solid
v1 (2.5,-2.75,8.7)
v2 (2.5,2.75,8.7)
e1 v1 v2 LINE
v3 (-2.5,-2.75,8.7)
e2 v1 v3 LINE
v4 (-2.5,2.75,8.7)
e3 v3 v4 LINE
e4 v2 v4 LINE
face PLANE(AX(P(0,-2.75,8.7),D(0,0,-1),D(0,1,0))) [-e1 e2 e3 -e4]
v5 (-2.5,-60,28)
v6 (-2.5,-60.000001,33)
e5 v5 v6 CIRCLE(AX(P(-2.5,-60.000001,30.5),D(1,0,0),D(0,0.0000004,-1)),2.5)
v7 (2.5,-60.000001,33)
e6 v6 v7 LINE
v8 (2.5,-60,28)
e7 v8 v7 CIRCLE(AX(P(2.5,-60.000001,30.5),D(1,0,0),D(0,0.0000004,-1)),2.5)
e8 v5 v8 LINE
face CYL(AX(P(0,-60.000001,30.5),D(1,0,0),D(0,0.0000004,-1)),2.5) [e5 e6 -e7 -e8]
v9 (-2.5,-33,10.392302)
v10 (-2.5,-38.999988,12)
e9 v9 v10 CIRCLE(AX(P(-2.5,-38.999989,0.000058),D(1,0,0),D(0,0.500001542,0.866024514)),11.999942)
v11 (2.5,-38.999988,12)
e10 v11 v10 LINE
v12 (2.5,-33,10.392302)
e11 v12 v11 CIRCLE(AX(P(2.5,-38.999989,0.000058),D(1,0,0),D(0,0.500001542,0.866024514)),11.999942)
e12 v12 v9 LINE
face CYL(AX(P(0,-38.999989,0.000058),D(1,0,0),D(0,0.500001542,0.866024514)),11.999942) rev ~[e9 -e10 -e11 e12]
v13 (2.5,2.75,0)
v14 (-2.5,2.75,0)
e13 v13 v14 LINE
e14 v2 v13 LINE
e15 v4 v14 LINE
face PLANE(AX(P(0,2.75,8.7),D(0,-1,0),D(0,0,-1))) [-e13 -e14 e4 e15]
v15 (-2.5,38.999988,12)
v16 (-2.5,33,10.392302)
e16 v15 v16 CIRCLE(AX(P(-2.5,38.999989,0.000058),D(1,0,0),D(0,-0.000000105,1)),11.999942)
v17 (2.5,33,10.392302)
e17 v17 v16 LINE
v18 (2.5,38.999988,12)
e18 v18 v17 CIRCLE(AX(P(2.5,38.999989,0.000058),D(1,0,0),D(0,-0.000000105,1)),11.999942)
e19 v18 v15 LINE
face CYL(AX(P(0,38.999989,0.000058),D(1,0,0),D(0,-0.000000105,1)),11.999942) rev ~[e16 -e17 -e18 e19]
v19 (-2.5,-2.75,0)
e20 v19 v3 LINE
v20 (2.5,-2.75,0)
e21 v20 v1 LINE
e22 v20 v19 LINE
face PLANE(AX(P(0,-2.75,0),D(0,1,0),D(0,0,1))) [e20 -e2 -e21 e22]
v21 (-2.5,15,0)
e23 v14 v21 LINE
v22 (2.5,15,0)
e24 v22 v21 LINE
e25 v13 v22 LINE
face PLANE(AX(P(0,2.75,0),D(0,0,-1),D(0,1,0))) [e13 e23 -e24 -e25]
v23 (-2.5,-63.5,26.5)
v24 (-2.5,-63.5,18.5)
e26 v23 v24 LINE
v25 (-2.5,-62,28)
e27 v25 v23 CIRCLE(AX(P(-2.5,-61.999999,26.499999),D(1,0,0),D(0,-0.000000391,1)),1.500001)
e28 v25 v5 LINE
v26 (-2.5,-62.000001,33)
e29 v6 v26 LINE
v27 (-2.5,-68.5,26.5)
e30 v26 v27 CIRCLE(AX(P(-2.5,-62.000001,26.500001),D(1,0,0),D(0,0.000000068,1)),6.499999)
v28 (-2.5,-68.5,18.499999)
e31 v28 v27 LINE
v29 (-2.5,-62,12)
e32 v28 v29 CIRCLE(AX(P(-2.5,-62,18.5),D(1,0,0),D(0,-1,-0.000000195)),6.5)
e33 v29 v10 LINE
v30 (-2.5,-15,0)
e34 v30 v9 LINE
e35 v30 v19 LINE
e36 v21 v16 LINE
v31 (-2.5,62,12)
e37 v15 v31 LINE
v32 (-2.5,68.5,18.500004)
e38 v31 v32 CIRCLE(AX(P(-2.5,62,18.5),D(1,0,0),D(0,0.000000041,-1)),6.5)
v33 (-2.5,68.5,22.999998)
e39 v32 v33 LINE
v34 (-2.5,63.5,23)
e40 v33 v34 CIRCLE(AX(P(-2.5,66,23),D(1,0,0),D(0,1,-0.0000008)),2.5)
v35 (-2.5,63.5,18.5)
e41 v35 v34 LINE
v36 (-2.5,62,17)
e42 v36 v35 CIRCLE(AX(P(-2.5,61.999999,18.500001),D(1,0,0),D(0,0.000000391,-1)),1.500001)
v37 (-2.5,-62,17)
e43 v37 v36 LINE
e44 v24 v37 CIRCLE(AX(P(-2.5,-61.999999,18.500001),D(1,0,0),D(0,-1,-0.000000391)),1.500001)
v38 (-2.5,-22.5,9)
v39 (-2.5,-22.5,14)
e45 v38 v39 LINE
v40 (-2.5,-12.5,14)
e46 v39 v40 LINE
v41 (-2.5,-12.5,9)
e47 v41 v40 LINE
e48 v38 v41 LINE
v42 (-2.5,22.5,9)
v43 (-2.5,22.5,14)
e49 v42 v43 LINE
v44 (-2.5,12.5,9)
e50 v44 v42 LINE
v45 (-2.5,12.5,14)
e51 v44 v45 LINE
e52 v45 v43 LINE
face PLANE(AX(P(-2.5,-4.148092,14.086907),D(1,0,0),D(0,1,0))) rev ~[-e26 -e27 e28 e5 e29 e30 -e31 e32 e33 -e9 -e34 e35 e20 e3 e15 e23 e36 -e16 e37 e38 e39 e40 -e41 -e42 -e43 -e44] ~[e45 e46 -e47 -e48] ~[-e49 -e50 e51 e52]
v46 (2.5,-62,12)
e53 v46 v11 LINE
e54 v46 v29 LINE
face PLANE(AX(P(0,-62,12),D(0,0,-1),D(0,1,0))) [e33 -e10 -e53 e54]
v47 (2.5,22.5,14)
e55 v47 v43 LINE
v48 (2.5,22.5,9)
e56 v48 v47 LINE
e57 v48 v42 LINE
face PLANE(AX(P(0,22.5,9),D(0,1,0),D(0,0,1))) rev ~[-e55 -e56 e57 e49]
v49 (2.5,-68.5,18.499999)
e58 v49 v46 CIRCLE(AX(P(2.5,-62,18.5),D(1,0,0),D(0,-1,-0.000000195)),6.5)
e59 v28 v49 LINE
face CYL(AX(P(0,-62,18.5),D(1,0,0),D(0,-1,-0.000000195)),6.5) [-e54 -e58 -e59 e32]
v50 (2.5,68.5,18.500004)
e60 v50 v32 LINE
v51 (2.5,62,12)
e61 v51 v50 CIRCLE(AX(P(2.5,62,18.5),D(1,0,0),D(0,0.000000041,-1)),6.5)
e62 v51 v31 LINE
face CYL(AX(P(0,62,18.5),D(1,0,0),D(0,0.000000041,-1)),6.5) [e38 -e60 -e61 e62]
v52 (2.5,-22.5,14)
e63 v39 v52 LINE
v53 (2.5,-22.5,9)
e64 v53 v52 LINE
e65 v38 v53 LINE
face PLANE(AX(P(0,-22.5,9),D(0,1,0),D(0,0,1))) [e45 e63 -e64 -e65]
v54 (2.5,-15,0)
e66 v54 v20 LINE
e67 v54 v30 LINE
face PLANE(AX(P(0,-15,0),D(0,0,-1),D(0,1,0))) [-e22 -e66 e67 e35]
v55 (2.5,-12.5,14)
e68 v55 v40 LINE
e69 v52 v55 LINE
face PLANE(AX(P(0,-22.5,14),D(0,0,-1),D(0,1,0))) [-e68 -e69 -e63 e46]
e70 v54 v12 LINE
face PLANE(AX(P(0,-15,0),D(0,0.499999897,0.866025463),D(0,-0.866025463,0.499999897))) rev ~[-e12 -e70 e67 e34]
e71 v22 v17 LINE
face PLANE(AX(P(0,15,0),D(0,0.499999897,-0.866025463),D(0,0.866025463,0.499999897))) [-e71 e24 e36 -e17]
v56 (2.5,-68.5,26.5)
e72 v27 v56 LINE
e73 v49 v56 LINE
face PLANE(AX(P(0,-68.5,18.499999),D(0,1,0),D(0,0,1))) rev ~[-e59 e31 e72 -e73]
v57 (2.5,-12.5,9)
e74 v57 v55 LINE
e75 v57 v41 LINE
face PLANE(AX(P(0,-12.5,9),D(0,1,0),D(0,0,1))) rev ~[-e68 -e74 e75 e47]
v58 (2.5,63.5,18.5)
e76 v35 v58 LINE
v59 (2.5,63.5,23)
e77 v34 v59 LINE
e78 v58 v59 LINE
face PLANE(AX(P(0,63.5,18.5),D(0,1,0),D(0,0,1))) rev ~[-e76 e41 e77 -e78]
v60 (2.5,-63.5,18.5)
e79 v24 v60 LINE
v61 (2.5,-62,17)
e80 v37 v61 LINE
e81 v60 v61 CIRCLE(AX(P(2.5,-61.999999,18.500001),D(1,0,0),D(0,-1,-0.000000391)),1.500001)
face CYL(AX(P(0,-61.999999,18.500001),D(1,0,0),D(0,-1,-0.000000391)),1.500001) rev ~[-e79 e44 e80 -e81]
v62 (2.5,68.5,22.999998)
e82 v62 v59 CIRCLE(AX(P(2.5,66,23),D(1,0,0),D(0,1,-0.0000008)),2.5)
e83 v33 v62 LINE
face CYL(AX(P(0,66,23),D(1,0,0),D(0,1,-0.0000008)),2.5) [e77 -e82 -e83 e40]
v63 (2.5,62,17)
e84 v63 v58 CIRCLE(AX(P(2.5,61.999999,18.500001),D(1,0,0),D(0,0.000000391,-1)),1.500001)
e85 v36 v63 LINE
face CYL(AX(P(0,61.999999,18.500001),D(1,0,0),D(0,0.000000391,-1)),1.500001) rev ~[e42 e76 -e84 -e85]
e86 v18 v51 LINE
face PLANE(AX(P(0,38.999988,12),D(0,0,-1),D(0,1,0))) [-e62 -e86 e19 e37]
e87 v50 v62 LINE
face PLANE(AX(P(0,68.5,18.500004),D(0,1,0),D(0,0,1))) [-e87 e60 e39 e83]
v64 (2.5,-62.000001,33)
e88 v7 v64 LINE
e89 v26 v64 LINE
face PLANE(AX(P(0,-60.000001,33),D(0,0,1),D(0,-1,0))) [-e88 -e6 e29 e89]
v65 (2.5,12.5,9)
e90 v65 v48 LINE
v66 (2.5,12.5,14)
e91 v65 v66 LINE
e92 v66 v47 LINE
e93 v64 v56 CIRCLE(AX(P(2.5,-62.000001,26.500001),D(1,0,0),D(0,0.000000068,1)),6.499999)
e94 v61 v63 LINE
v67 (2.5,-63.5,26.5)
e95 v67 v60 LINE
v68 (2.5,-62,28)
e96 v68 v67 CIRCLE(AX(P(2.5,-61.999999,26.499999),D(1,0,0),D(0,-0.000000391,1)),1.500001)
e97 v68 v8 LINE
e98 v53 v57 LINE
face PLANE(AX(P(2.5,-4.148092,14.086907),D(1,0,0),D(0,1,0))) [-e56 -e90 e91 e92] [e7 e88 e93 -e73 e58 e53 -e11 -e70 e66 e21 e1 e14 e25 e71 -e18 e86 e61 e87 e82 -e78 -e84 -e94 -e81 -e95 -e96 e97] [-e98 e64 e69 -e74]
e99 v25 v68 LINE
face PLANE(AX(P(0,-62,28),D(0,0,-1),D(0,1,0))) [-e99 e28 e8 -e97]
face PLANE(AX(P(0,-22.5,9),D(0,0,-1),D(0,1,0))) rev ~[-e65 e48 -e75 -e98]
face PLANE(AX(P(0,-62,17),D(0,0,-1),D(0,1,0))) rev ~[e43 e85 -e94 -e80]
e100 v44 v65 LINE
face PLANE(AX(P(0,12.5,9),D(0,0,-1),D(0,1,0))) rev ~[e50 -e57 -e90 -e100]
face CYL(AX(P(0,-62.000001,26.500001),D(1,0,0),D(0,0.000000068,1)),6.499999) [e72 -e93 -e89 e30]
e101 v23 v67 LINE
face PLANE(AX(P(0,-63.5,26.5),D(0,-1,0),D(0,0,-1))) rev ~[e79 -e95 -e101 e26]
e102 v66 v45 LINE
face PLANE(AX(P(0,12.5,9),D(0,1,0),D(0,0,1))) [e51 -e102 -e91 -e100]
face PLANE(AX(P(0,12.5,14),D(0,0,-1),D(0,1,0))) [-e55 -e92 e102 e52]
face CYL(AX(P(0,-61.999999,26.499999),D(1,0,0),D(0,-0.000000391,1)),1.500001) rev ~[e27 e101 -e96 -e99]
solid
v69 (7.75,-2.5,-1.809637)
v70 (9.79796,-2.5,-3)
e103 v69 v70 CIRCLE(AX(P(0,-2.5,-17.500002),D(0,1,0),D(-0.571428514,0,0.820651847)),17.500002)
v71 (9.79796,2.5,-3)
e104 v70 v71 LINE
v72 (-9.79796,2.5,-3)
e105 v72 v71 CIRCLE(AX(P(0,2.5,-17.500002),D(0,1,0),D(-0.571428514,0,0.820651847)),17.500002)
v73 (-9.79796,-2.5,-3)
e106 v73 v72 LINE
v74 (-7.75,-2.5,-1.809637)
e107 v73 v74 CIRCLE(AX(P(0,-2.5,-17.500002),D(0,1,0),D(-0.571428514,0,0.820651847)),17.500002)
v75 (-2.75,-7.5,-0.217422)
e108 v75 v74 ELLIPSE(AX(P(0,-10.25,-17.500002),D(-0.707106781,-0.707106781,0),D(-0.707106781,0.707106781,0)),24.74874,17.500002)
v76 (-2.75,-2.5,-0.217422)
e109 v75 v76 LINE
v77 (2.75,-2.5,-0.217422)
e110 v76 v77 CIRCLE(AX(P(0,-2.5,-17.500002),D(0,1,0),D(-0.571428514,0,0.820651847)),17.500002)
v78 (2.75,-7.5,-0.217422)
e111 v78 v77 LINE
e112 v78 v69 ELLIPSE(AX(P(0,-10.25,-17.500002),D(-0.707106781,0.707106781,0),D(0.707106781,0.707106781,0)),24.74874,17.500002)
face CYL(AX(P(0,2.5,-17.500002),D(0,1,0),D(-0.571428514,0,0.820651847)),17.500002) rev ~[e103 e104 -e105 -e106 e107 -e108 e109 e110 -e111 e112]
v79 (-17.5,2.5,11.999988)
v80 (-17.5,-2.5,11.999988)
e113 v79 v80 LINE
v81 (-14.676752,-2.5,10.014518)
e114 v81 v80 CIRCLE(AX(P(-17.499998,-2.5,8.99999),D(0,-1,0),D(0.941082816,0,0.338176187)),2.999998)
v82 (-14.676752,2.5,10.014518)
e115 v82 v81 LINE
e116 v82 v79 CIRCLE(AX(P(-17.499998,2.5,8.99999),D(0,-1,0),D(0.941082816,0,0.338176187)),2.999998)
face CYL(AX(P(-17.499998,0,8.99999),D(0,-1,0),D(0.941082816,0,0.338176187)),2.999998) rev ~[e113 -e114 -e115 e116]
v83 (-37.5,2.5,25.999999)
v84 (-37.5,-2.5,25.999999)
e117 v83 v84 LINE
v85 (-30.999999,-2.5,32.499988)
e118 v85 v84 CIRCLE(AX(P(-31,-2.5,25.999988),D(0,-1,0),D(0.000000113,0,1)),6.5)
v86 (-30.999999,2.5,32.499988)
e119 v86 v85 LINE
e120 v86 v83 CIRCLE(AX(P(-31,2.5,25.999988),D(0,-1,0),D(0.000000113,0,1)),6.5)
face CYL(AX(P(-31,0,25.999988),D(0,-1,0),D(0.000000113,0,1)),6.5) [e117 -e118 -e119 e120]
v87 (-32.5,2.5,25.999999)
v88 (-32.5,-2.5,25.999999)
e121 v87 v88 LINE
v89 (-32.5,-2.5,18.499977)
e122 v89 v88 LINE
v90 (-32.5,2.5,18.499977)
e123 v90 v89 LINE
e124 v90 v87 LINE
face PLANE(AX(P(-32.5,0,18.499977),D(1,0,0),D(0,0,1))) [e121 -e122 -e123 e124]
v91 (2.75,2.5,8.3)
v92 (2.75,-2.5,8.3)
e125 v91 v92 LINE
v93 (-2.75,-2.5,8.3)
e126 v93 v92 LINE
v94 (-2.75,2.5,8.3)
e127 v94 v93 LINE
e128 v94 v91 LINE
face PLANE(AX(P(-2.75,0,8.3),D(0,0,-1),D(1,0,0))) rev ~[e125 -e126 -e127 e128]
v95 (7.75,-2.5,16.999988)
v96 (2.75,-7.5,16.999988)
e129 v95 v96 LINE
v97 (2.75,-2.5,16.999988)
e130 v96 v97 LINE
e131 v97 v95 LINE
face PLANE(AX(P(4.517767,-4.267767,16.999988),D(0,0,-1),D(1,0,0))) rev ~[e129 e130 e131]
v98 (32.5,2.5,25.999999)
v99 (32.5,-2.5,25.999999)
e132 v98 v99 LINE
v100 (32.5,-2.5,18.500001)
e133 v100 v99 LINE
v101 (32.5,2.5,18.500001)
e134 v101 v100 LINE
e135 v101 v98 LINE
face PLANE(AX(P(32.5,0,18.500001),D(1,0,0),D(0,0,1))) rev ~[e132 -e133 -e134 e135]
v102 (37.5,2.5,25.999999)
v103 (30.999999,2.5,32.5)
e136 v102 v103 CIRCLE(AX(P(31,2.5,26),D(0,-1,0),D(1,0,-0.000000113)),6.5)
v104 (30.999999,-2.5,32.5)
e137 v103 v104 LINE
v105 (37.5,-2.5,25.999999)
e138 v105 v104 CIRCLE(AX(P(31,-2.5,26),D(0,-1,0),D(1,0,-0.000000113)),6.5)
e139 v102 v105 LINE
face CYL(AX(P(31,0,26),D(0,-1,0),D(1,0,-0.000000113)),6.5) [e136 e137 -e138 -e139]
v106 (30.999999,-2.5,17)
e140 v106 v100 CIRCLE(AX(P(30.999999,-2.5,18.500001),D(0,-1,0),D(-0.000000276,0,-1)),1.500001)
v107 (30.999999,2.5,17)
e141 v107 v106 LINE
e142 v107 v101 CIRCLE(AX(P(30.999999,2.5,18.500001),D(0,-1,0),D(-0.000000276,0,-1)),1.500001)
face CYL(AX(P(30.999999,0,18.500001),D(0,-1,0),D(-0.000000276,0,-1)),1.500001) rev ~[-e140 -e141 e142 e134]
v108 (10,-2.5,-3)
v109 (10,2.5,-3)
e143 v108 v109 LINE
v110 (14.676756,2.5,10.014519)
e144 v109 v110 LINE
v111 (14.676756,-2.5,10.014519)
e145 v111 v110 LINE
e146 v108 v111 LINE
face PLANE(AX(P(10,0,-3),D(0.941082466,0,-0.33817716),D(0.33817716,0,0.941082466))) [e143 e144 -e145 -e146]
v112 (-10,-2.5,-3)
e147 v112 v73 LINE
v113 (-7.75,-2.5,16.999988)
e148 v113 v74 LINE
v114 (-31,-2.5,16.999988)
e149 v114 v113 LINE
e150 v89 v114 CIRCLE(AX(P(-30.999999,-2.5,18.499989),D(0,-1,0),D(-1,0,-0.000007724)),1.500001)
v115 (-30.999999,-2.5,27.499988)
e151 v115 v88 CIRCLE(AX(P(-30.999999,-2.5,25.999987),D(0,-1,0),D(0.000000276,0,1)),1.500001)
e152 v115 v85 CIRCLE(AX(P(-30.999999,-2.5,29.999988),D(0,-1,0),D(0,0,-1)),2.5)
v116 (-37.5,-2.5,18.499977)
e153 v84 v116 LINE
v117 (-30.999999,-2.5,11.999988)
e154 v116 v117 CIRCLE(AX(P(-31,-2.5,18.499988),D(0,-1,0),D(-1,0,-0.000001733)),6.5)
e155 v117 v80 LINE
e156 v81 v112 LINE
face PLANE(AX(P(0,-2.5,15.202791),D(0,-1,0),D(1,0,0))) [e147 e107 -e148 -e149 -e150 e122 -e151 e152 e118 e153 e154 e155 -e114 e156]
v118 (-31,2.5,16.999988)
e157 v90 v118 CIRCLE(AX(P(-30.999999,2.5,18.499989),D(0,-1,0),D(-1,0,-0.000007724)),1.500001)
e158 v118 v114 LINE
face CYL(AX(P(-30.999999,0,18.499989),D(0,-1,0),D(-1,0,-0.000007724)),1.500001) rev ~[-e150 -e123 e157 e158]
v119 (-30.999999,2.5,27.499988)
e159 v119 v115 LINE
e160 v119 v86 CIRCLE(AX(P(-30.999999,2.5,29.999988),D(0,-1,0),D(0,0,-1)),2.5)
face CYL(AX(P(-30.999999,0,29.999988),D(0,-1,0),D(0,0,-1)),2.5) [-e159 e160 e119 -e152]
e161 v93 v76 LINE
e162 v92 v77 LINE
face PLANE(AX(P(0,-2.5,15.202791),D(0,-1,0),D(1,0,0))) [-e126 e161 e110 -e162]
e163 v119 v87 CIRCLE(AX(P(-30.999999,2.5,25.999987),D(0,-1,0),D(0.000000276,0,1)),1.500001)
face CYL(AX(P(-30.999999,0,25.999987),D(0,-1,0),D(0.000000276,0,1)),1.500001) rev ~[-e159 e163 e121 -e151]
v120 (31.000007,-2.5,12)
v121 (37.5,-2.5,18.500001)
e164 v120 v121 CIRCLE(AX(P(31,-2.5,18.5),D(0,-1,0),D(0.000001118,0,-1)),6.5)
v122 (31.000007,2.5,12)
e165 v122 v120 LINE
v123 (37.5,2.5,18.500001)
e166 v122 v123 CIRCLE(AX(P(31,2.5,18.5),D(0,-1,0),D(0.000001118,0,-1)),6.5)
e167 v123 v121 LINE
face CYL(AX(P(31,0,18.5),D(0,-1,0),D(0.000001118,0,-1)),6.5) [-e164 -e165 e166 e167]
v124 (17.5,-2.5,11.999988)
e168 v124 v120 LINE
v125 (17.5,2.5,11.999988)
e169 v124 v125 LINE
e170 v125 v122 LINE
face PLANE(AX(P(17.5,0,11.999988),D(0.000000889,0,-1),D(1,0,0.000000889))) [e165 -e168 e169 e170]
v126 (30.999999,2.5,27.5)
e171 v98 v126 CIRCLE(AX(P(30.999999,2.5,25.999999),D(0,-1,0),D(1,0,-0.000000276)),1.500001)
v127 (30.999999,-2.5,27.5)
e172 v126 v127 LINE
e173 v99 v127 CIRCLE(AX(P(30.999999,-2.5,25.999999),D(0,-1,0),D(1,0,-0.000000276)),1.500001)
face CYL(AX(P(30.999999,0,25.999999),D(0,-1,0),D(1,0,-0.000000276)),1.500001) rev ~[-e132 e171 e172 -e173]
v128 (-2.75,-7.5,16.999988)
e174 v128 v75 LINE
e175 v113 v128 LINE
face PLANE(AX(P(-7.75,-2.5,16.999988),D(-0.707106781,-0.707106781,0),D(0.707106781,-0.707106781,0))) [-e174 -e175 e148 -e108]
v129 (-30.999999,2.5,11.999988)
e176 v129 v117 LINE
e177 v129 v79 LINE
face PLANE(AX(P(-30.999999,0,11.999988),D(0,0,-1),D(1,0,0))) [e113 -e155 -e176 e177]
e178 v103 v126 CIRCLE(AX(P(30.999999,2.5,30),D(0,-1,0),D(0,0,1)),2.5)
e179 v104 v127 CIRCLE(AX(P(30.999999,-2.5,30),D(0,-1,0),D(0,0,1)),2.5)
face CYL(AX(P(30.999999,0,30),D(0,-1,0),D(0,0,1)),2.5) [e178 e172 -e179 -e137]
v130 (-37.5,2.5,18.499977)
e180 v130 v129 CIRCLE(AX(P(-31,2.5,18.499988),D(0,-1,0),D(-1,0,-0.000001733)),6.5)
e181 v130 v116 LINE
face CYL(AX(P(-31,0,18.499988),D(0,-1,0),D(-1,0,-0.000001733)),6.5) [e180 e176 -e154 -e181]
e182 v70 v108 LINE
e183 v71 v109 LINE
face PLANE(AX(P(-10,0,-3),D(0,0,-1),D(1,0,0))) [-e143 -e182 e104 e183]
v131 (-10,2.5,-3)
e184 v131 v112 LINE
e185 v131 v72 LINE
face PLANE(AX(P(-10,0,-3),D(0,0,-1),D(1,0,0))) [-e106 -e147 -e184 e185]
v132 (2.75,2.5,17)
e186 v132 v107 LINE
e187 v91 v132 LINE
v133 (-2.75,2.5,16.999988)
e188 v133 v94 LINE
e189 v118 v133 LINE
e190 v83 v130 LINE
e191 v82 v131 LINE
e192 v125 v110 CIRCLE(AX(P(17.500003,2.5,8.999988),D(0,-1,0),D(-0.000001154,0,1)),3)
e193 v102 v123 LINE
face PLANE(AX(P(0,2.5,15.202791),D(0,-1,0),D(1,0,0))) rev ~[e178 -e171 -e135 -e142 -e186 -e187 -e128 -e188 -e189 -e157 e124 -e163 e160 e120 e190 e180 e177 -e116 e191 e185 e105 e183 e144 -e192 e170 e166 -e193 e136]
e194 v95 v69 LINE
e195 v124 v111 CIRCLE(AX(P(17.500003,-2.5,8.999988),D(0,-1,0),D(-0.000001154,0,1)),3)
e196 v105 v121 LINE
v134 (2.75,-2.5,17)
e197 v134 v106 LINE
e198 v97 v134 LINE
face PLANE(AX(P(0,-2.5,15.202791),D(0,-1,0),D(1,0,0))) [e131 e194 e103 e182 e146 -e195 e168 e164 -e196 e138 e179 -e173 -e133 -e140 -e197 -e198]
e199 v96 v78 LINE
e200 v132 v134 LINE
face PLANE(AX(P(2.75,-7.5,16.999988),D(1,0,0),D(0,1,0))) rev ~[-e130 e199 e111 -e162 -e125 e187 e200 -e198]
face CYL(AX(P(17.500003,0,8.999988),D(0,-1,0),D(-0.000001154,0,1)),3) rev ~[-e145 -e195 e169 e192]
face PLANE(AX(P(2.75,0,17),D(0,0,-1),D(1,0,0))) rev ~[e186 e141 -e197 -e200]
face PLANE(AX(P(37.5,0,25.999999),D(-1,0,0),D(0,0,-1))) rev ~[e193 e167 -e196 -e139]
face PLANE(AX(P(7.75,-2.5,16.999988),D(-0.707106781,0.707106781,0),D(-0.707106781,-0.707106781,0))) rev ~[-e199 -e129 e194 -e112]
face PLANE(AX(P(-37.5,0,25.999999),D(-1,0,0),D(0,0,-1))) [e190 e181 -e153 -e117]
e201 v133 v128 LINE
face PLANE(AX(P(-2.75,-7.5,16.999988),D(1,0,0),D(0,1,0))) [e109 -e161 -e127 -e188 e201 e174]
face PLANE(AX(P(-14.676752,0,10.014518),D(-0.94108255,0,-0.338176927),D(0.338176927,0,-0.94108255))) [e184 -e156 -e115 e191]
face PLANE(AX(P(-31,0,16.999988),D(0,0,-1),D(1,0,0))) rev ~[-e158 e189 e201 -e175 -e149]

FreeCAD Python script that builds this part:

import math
import FreeCAD as App
import Part
import Sketcher

V = App.Vector
Q = App.Units.Quantity


def add_polygon(sketch, points):
    """Adds a closed chain of lines whose ends are joined by coincident constraints."""
    first, n = sketch.GeometryCount, len(points)
    for a, b in zip(points, points[1:] + points[:1]):
        sketch.addGeometry(Part.LineSegment(App.Vector(*a, 0), App.Vector(*b, 0)), False)
    for i in range(n):
        sketch.addConstraint(Sketcher.Constraint("Coincident", first + i, 2, first + (i + 1) % n, 1))

doc = App.newDocument("Part")
body = doc.addObject("PartDesign::Body", "Body")

# Sketch on YZ plane
sketch1 = body.newObject("Sketcher::SketchObject", "Sketch")
sketch1.AttachmentSupport = (doc.getObject("YZ_Plane"), [""])
sketch1.MapMode = "FlatFace"
sketch1.addGeometry(Part.LineSegment(V(68.5, 18.500004, 0), V(68.5, 22.999998, 0)), False)  # 0
sketch1.addGeometry(Part.ArcOfCircle(Part.Circle(V(66, 23, 0), V(0, 0, 1), 2.5), math.radians(-0.000046), math.radians(180)), False)  # 1
sketch1.addGeometry(Part.LineSegment(V(63.5, 23, 0), V(63.5, 18.5, 0)), False)  # 2
sketch1.addGeometry(Part.ArcOfCircle(Part.Circle(V(61.999999, 18.500001, 0), V(0, 0, 1), 1.500001), math.radians(-89.999978), math.radians(-0.000022)), False)  # 3
sketch1.addGeometry(Part.LineSegment(V(62, 17, 0), V(-62, 17, 0)), False)  # 4
sketch1.addGeometry(Part.ArcOfCircle(Part.Circle(V(-61.999999, 18.500001, 0), V(0, 0, 1), 1.500001), math.radians(-179.999978), math.radians(-90.000022)), False)  # 5
sketch1.addGeometry(Part.LineSegment(V(-63.5, 18.5, 0), V(-63.5, 26.5, 0)), False)  # 6
sketch1.addGeometry(Part.ArcOfCircle(Part.Circle(V(-61.999999, 26.499999, 0), V(0, 0, 1), 1.500001), math.radians(90.000022), math.radians(179.999978)), False)  # 7
sketch1.addGeometry(Part.LineSegment(V(-62, 28, 0), V(-60, 28, 0)), False)  # 8
sketch1.addGeometry(Part.ArcOfCircle(Part.Circle(V(-60.000001, 30.5, 0), V(0, 0, 1), 2.5), math.radians(-89.999977), math.radians(90)), False)  # 9
sketch1.addGeometry(Part.LineSegment(V(-60.000001, 33, 0), V(-62.000001, 33, 0)), False)  # 10
sketch1.addGeometry(Part.ArcOfCircle(Part.Circle(V(-62.000001, 26.500001, 0), V(0, 0, 1), 6.499999), math.radians(89.999996), math.radians(180.000013)), False)  # 11
sketch1.addGeometry(Part.LineSegment(V(-68.5, 26.5, 0), V(-68.5, 18.499999, 0)), False)  # 12
sketch1.addGeometry(Part.ArcOfCircle(Part.Circle(V(-62, 18.5, 0), V(0, 0, 1), 6.5), math.radians(-179.999989), math.radians(-90.000002)), False)  # 13
sketch1.addGeometry(Part.LineSegment(V(-62, 12, 0), V(-38.999988, 12, 0)), False)  # 14
sketch1.addGeometry(Part.ArcOfCircle(Part.Circle(V(-38.999989, 0.000058, 0), V(0, 0, 1), 11.999942), math.radians(59.999898), math.radians(89.999994)), False)  # 15
sketch1.addGeometry(Part.LineSegment(V(-33, 10.392302, 0), V(-15, 0, 0)), False)  # 16
sketch1.addGeometry(Part.LineSegment(V(-15, 0, 0), V(-2.75, 0, 0)), False)  # 17
sketch1.addGeometry(Part.LineSegment(V(-2.75, 0, 0), V(-2.75, 8.7, 0)), False)  # 18
sketch1.addGeometry(Part.LineSegment(V(-2.75, 8.7, 0), V(2.75, 8.7, 0)), False)  # 19
sketch1.addGeometry(Part.LineSegment(V(2.75, 8.7, 0), V(2.75, 0, 0)), False)  # 20
sketch1.addGeometry(Part.LineSegment(V(2.75, 0, 0), V(15, 0, 0)), False)  # 21
sketch1.addGeometry(Part.LineSegment(V(15, 0, 0), V(33, 10.392302, 0)), False)  # 22
sketch1.addGeometry(Part.ArcOfCircle(Part.Circle(V(38.999989, 0.000058, 0), V(0, 0, 1), 11.999942), math.radians(90.000006), math.radians(120.000102)), False)  # 23
sketch1.addGeometry(Part.LineSegment(V(38.999988, 12, 0), V(62, 12, 0)), False)  # 24
sketch1.addGeometry(Part.ArcOfCircle(Part.Circle(V(62, 18.5, 0), V(0, 0, 1), 6.5), math.radians(-89.999998), math.radians(0.000033)), False)  # 25
add_polygon(sketch1, [(-12.5, 9), (-22.5, 9), (-22.5, 14), (-12.5, 14)])  # lines 26-29
add_polygon(sketch1, [(22.5, 9), (12.5, 9), (12.5, 14), (22.5, 14)])  # lines 30-33
sketch1.addConstraint(Sketcher.Constraint("Coincident", 0, 2, 1, 1))
sketch1.addConstraint(Sketcher.Constraint("Coincident", 1, 2, 2, 1))
sketch1.addConstraint(Sketcher.Constraint("Coincident", 2, 2, 3, 2))
sketch1.addConstraint(Sketcher.Constraint("Coincident", 3, 1, 4, 1))
sketch1.addConstraint(Sketcher.Constraint("Coincident", 4, 2, 5, 2))
sketch1.addConstraint(Sketcher.Constraint("Coincident", 5, 1, 6, 1))
sketch1.addConstraint(Sketcher.Constraint("Coincident", 6, 2, 7, 2))
sketch1.addConstraint(Sketcher.Constraint("Coincident", 7, 1, 8, 1))
sketch1.addConstraint(Sketcher.Constraint("Coincident", 8, 2, 9, 1))
sketch1.addConstraint(Sketcher.Constraint("Coincident", 9, 2, 10, 1))
sketch1.addConstraint(Sketcher.Constraint("Coincident", 10, 2, 11, 1))
sketch1.addConstraint(Sketcher.Constraint("Coincident", 11, 2, 12, 1))
sketch1.addConstraint(Sketcher.Constraint("Coincident", 12, 2, 13, 1))
sketch1.addConstraint(Sketcher.Constraint("Coincident", 13, 2, 14, 1))
sketch1.addConstraint(Sketcher.Constraint("Coincident", 14, 2, 15, 2))
sketch1.addConstraint(Sketcher.Constraint("Coincident", 15, 1, 16, 1))
sketch1.addConstraint(Sketcher.Constraint("Coincident", 16, 2, 17, 1))
sketch1.addConstraint(Sketcher.Constraint("Coincident", 17, 2, 18, 1))
sketch1.addConstraint(Sketcher.Constraint("Coincident", 18, 2, 19, 1))
sketch1.addConstraint(Sketcher.Constraint("Coincident", 19, 2, 20, 1))
sketch1.addConstraint(Sketcher.Constraint("Coincident", 20, 2, 21, 1))
sketch1.addConstraint(Sketcher.Constraint("Coincident", 21, 2, 22, 1))
sketch1.addConstraint(Sketcher.Constraint("Coincident", 22, 2, 23, 2))
sketch1.addConstraint(Sketcher.Constraint("Coincident", 23, 1, 24, 1))
sketch1.addConstraint(Sketcher.Constraint("Coincident", 24, 2, 25, 1))
sketch1.addConstraint(Sketcher.Constraint("Coincident", 25, 2, 0, 1))
sketch1.addConstraint(Sketcher.Constraint("Vertical", 0))
sketch1.addConstraint(Sketcher.Constraint("Vertical", 2))
sketch1.addConstraint(Sketcher.Constraint("Horizontal", 4))
sketch1.addConstraint(Sketcher.Constraint("Vertical", 6))
sketch1.addConstraint(Sketcher.Constraint("Horizontal", 8))
sketch1.addConstraint(Sketcher.Constraint("Horizontal", 10))
sketch1.addConstraint(Sketcher.Constraint("Vertical", 12))
sketch1.addConstraint(Sketcher.Constraint("Horizontal", 14))
sketch1.addConstraint(Sketcher.Constraint("Horizontal", 17))
sketch1.addConstraint(Sketcher.Constraint("Vertical", 18))
sketch1.addConstraint(Sketcher.Constraint("Horizontal", 19))
sketch1.addConstraint(Sketcher.Constraint("Vertical", 20))
sketch1.addConstraint(Sketcher.Constraint("Horizontal", 21))
sketch1.addConstraint(Sketcher.Constraint("Horizontal", 24))
sketch1.addConstraint(Sketcher.Constraint("Horizontal", 26))
sketch1.addConstraint(Sketcher.Constraint("Vertical", 27))
sketch1.addConstraint(Sketcher.Constraint("Horizontal", 28))
sketch1.addConstraint(Sketcher.Constraint("Vertical", 29))
sketch1.addConstraint(Sketcher.Constraint("Horizontal", 30))
sketch1.addConstraint(Sketcher.Constraint("Vertical", 31))
sketch1.addConstraint(Sketcher.Constraint("Horizontal", 32))
sketch1.addConstraint(Sketcher.Constraint("Vertical", 33))
sketch1.addConstraint(Sketcher.Constraint("Coincident", 11, 3, 7, 3))
sketch1.addConstraint(Sketcher.Constraint("Coincident", 13, 3, 5, 3))
sketch1.addConstraint(Sketcher.Constraint("Coincident", 25, 3, 3, 3))
sketch1.addConstraint(Sketcher.Constraint("PointOnObject", 16, 2, -1))
sketch1.addConstraint(Sketcher.Constraint("PointOnObject", 20, 2, -1))
sketch1.addConstraint(Sketcher.Constraint("Radius", 1, Q("2.5 mm")))
sketch1.addConstraint(Sketcher.Constraint("Radius", 3, Q("1.500001 mm")))
sketch1.addConstraint(Sketcher.Constraint("Radius", 5, Q("1.500001 mm")))
sketch1.addConstraint(Sketcher.Constraint("Radius", 7, Q("1.500001 mm")))
sketch1.addConstraint(Sketcher.Constraint("Radius", 9, Q("2.5 mm")))
sketch1.addConstraint(Sketcher.Constraint("DistanceX", 4, 2, 4, 1, Q("124 mm")))
sketch1.addConstraint(Sketcher.Constraint("DistanceX", 8, 1, 8, 2, Q("2 mm")))
sketch1.addConstraint(Sketcher.Constraint("DistanceX", 10, 2, 10, 1, Q("2 mm")))
sketch1.addConstraint(Sketcher.Constraint("DistanceX", 26, 2, 26, 1, Q("10 mm")))
sketch1.addConstraint(Sketcher.Constraint("DistanceX", 30, 2, 30, 1, Q("10 mm")))
sketch1.addConstraint(Sketcher.Constraint("DistanceY", 6, 1, 6, 2, Q("8 mm")))
sketch1.addConstraint(Sketcher.Constraint("DistanceY", 12, 2, 12, 1, Q("8.000001 mm")))
sketch1.addConstraint(Sketcher.Constraint("DistanceY", 27, 1, 27, 2, Q("5 mm")))
sketch1.addConstraint(Sketcher.Constraint("DistanceY", 31, 1, 31, 2, Q("5 mm")))
sketch1.addConstraint(Sketcher.Constraint("DistanceX", 19, 1, 19, 2, Q("5.5 mm")))
sketch1.addConstraint(Sketcher.Constraint("DistanceY", 2, 2, 2, 1, Q("4.5 mm")))
sketch1.addConstraint(Sketcher.Constraint("DistanceY", 18, 1, 18, 2, Q("8.7 mm")))
sketch1.addConstraint(Sketcher.Constraint("DistanceX", -1, 1, 1, 3, Q("66 mm")))
sketch1.addConstraint(Sketcher.Constraint("DistanceY", -1, 1, 1, 3, Q("23 mm")))
sketch1.addConstraint(Sketcher.Constraint("DistanceX", 5, 3, -1, 1, Q("61.999999 mm")))
sketch1.addConstraint(Sketcher.Constraint("DistanceX", 9, 3, -1, 1, Q("60.000001 mm")))
sketch1.addConstraint(Sketcher.Constraint("DistanceY", -1, 1, 0, 2, Q("22.999998 mm")))
sketch1.addConstraint(Sketcher.Constraint("DistanceY", -1, 1, 1, 2, Q("23 mm")))
sketch1.addConstraint(Sketcher.Constraint("DistanceX", -1, 1, 3, 1, Q("62 mm")))
sketch1.addConstraint(Sketcher.Constraint("DistanceY", -1, 1, 3, 1, Q("17 mm")))
sketch1.addConstraint(Sketcher.Constraint("DistanceX", 7, 1, -1, 1, Q("62 mm")))
sketch1.addConstraint(Sketcher.Constraint("DistanceY", -1, 1, 7, 1, Q("28 mm")))
sketch1.addConstraint(Sketcher.Constraint("DistanceX", 9, 2, -1, 1, Q("60.000001 mm")))
sketch1.addConstraint(Sketcher.Constraint("DistanceX", 13, 2, -1, 1, Q("62 mm")))
sketch1.addConstraint(Sketcher.Constraint("DistanceX", 15, 1, -1, 1, Q("33 mm")))
sketch1.addConstraint(Sketcher.Constraint("DistanceX", 16, 2, -1, 1, Q("15 mm")))
sketch1.addConstraint(Sketcher.Constraint("DistanceX", -1, 1, 21, 2, Q("15 mm")))
sketch1.addConstraint(Sketcher.Constraint("DistanceX", -1, 1, 22, 2, Q("33 mm")))
sketch1.addConstraint(Sketcher.Constraint("DistanceX", -1, 1, 24, 2, Q("62 mm")))
sketch1.addConstraint(Sketcher.Constraint("DistanceY", -1, 1, 26, 2, Q("9 mm")))
sketch1.addConstraint(Sketcher.Constraint("DistanceY", -1, 1, 30, 2, Q("9 mm")))
sketch1.addConstraint(Sketcher.Constraint("DistanceY", 5, 1, 7, 3, Q("7.999999 mm")))
sketch1.addConstraint(Sketcher.Constraint("DistanceX", 17, 1, 17, 2, Q("12.25 mm")))
sketch1.addConstraint(Sketcher.Constraint("DistanceY", -1, 1, 11, 2, Q("26.5 mm")))
sketch1.addConstraint(Sketcher.Constraint("DistanceX", 26, 2, -1, 1, Q("22.5 mm")))
sketch1.addConstraint(Sketcher.Constraint("DistanceX", -1, 1, 30, 2, Q("12.5 mm")))
sketch1.addConstraint(Sketcher.Constraint("Radius", 15, Q("11.999942 mm")))
sketch1.addConstraint(Sketcher.Constraint("Radius", 23, Q("11.999942 mm")))
sketch1.addConstraint(Sketcher.Constraint("DistanceX", 14, 1, 14, 2, Q("23.000012 mm")))
sketch1.addConstraint(Sketcher.Constraint("DistanceX", 24, 1, 24, 2, Q("23.000012 mm")))
sketch1.addConstraint(Sketcher.Constraint("DistanceY", -1, 1, 15, 1, Q("10.392302 mm")))
sketch1.addConstraint(Sketcher.Constraint("DistanceY", 22, 2, 3, 1, Q("6.607698 mm")))
sketch1.addConstraint(Sketcher.Constraint("DistanceY", 0, 1, 0, 2, Q("4.499994 mm")))
pad1 = body.newObject("PartDesign::Pad", "Pad")
pad1.Profile = sketch1
pad1.Length = 5
pad1.Midplane = True
body2 = doc.addObject("PartDesign::Body", "Body001")
body2.AllowCompound = True

# Sketch on XZ plane
sketch2 = body2.newObject("Sketcher::SketchObject", "Sketch001")
sketch2.AttachmentSupport = (doc.getObject("XZ_Plane001"), [""])
sketch2.MapMode = "FlatFace"
sketch2.addGeometry(Part.LineSegment(V(17.5, 11.999988, 0), V(31.000007, 12, 0)), False)
sketch2.addGeometry(Part.ArcOfCircle(Part.Circle(V(31, 18.5, 0), V(0, 0, 1), 6.5), math.radians(-89.999936), math.radians(0.000006)), False)
sketch2.addGeometry(Part.LineSegment(V(37.5, 18.500001, 0), V(37.5, 25.999999, 0)), False)
sketch2.addGeometry(Part.ArcOfCircle(Part.Circle(V(31, 26, 0), V(0, 0, 1), 6.5), math.radians(-0.000006), math.radians(90.000006)), False)
sketch2.addGeometry(Part.ArcOfCircle(Part.Circle(V(30.999999, 30, 0), V(0, 0, 1), 2.5), math.radians(90), math.radians(270)), False)
sketch2.addGeometry(Part.ArcOfCircle(Part.Circle(V(30.999999, 25.999999, 0), V(0, 0, 1), 1.500001), math.radians(-0.000016), math.radians(90.000016)), False)
sketch2.addGeometry(Part.LineSegment(V(32.5, 25.999999, 0), V(32.5, 18.500001, 0)), False)
sketch2.addGeometry(Part.ArcOfCircle(Part.Circle(V(30.999999, 18.500001, 0), V(0, 0, 1), 1.500001), math.radians(-90.000016), math.radians(0.000016)), False)
sketch2.addGeometry(Part.LineSegment(V(30.999999, 17, 0), V(2.75, 17, 0)), False)
sketch2.addGeometry(Part.LineSegment(V(2.75, 17, 0), V(2.75, 8.3, 0)), False)
sketch2.addGeometry(Part.LineSegment(V(2.75, 8.3, 0), V(-2.75, 8.3, 0)), False)
sketch2.addGeometry(Part.LineSegment(V(-2.75, 8.3, 0), V(-2.75, 16.999988, 0)), False)
sketch2.addGeometry(Part.LineSegment(V(-2.75, 16.999988, 0), V(-31, 16.999988, 0)), False)
sketch2.addGeometry(Part.ArcOfCircle(Part.Circle(V(-30.999999, 18.499989, 0), V(0, 0, 1), 1.500001), math.radians(-179.999557), math.radians(-90.000022)), False)
sketch2.addGeometry(Part.LineSegment(V(-32.5, 18.499977, 0), V(-32.5, 25.999999, 0)), False)
sketch2.addGeometry(Part.ArcOfCircle(Part.Circle(V(-30.999999, 25.999987, 0), V(0, 0, 1), 1.500001), math.radians(89.999984), math.radians(179.999557)), False)
sketch2.addGeometry(Part.ArcOfCircle(Part.Circle(V(-30.999999, 29.999988, 0), V(0, 0, 1), 2.5), math.radians(-90), math.radians(90)), False)
sketch2.addGeometry(Part.ArcOfCircle(Part.Circle(V(-31, 25.999988, 0), V(0, 0, 1), 6.5), math.radians(89.999994), math.radians(179.999901)), False)
sketch2.addGeometry(Part.LineSegment(V(-37.5, 25.999999, 0), V(-37.5, 18.499977, 0)), False)
sketch2.addGeometry(Part.ArcOfCircle(Part.Circle(V(-31, 18.499988, 0), V(0, 0, 1), 6.5), math.radians(-179.999901), math.radians(-89.999994)), False)
sketch2.addGeometry(Part.LineSegment(V(-30.999999, 11.999988, 0), V(-17.5, 11.999988, 0)), False)
sketch2.addGeometry(Part.ArcOfCircle(Part.Circle(V(-17.499998, 8.99999, 0), V(0, 0, 1), 2.999998), math.radians(19.765796), math.radians(90.000031)), False)
sketch2.addGeometry(Part.LineSegment(V(-14.676752, 10.014518, 0), V(-10, -3, 0)), False)
sketch2.addGeometry(Part.LineSegment(V(-10, -3, 0), V(10, -3, 0)), False)
sketch2.addGeometry(Part.LineSegment(V(10, -3, 0), V(14.676756, 10.014519, 0)), False)
sketch2.addGeometry(Part.ArcOfCircle(Part.Circle(V(17.500003, 8.999988, 0), V(0, 0, 1), 3), math.radians(90.000066), math.radians(160.234156)), False)
sketch2.addConstraint(Sketcher.Constraint("Coincident", 0, 2, 1, 1))
sketch2.addConstraint(Sketcher.Constraint("Coincident", 1, 2, 2, 1))
sketch2.addConstraint(Sketcher.Constraint("Coincident", 2, 2, 3, 1))
sketch2.addConstraint(Sketcher.Constraint("Coincident", 3, 2, 4, 1))
sketch2.addConstraint(Sketcher.Constraint("Coincident", 4, 2, 5, 2))
sketch2.addConstraint(Sketcher.Constraint("Coincident", 5, 1, 6, 1))
sketch2.addConstraint(Sketcher.Constraint("Coincident", 6, 2, 7, 2))
sketch2.addConstraint(Sketcher.Constraint("Coincident", 7, 1, 8, 1))
sketch2.addConstraint(Sketcher.Constraint("Coincident", 8, 2, 9, 1))
sketch2.addConstraint(Sketcher.Constraint("Coincident", 9, 2, 10, 1))
sketch2.addConstraint(Sketcher.Constraint("Coincident", 10, 2, 11, 1))
sketch2.addConstraint(Sketcher.Constraint("Coincident", 11, 2, 12, 1))
sketch2.addConstraint(Sketcher.Constraint("Coincident", 12, 2, 13, 2))
sketch2.addConstraint(Sketcher.Constraint("Coincident", 13, 1, 14, 1))
sketch2.addConstraint(Sketcher.Constraint("Coincident", 14, 2, 15, 2))
sketch2.addConstraint(Sketcher.Constraint("Coincident", 15, 1, 16, 1))
sketch2.addConstraint(Sketcher.Constraint("Coincident", 16, 2, 17, 1))
sketch2.addConstraint(Sketcher.Constraint("Coincident", 17, 2, 18, 1))
sketch2.addConstraint(Sketcher.Constraint("Coincident", 18, 2, 19, 1))
sketch2.addConstraint(Sketcher.Constraint("Coincident", 19, 2, 20, 1))
sketch2.addConstraint(Sketcher.Constraint("Coincident", 20, 2, 21, 2))
sketch2.addConstraint(Sketcher.Constraint("Coincident", 21, 1, 22, 1))
sketch2.addConstraint(Sketcher.Constraint("Coincident", 22, 2, 23, 1))
sketch2.addConstraint(Sketcher.Constraint("Coincident", 23, 2, 24, 1))
sketch2.addConstraint(Sketcher.Constraint("Coincident", 24, 2, 25, 2))
sketch2.addConstraint(Sketcher.Constraint("Coincident", 25, 1, 0, 1))
sketch2.addConstraint(Sketcher.Constraint("Vertical", 2))
sketch2.addConstraint(Sketcher.Constraint("Vertical", 6))
sketch2.addConstraint(Sketcher.Constraint("Horizontal", 8))
sketch2.addConstraint(Sketcher.Constraint("Vertical", 9))
sketch2.addConstraint(Sketcher.Constraint("Horizontal", 10))
sketch2.addConstraint(Sketcher.Constraint("Vertical", 11))
sketch2.addConstraint(Sketcher.Constraint("Horizontal", 12))
sketch2.addConstraint(Sketcher.Constraint("Vertical", 14))
sketch2.addConstraint(Sketcher.Constraint("Vertical", 18))
sketch2.addConstraint(Sketcher.Constraint("Horizontal", 20))
sketch2.addConstraint(Sketcher.Constraint("Horizontal", 23))
sketch2.addConstraint(Sketcher.Constraint("Coincident", 5, 3, 3, 3))
sketch2.addConstraint(Sketcher.Constraint("Coincident", 7, 3, 1, 3))
sketch2.addConstraint(Sketcher.Constraint("Coincident", 17, 3, 15, 3))
sketch2.addConstraint(Sketcher.Constraint("Coincident", 19, 3, 13, 3))
sketch2.addConstraint(Sketcher.Constraint("Radius", 25, Q("3 mm")))
sketch2.addConstraint(Sketcher.Constraint("Radius", 1, Q("6.5 mm")))
sketch2.addConstraint(Sketcher.Constraint("Radius", 3, Q("6.5 mm")))
sketch2.addConstraint(Sketcher.Constraint("Radius", 4, Q("2.5 mm")))
sketch2.addConstraint(Sketcher.Constraint("Radius", 13, Q("1.500001 mm")))
sketch2.addConstraint(Sketcher.Constraint("Radius", 15, Q("1.500001 mm")))
sketch2.addConstraint(Sketcher.Constraint("Radius", 16, Q("2.5 mm")))
sketch2.addConstraint(Sketcher.Constraint("DistanceX", 23, 1, 23, 2, Q("20 mm")))
sketch2.addConstraint(Sketcher.Constraint("DistanceX", 10, 2, 10, 1, Q("5.5 mm")))
sketch2.addConstraint(Sketcher.Constraint("DistanceX", 20, 1, 20, 2, Q("13.499999 mm")))
sketch2.addConstraint(Sketcher.Constraint("DistanceY", 9, 2, 9, 1, Q("8.7 mm")))
sketch2.addConstraint(Sketcher.Constraint("DistanceX", -1, 1, 1, 3, Q("31 mm")))
sketch2.addConstraint(Sketcher.Constraint("DistanceY", -1, 1, 3, 3, Q("26 mm")))
sketch2.addConstraint(Sketcher.Constraint("DistanceX", -1, 1, 4, 3, Q("30.999999 mm")))
sketch2.addConstraint(Sketcher.Constraint("DistanceX", 13, 3, -1, 1, Q("30.999999 mm")))
sketch2.addConstraint(Sketcher.Constraint("DistanceX", 16, 3, -1, 1, Q("30.999999 mm")))
sketch2.addConstraint(Sketcher.Constraint("DistanceY", -1, 1, 0, 2, Q("12 mm")))
sketch2.addConstraint(Sketcher.Constraint("DistanceY", -1, 1, 2, 2, Q("25.999999 mm")))
sketch2.addConstraint(Sketcher.Constraint("DistanceX", -1, 1, 3, 2, Q("30.999999 mm")))
sketch2.addConstraint(Sketcher.Constraint("DistanceX", -1, 1, 4, 2, Q("30.999999 mm")))
sketch2.addConstraint(Sketcher.Constraint("DistanceY", -1, 1, 5, 1, Q("25.999999 mm")))
sketch2.addConstraint(Sketcher.Constraint("DistanceX", -1, 1, 7, 1, Q("30.999999 mm")))
sketch2.addConstraint(Sketcher.Constraint("DistanceX", 12, 2, -1, 1, Q("31 mm")))
sketch2.addConstraint(Sketcher.Constraint("DistanceY", -1, 1, 14, 2, Q("25.999999 mm")))
sketch2.addConstraint(Sketcher.Constraint("DistanceX", 15, 1, -1, 1, Q("30.999999 mm")))
sketch2.addConstraint(Sketcher.Constraint("DistanceX", 16, 2, -1, 1, Q("30.999999 mm")))
sketch2.addConstraint(Sketcher.Constraint("DistanceY", -1, 1, 17, 2, Q("25.999999 mm")))
sketch2.addConstraint(Sketcher.Constraint("DistanceX", 19, 2, -1, 1, Q("30.999999 mm")))
sketch2.addConstraint(Sketcher.Constraint("DistanceX", 22, 2, -1, 1, Q("10 mm")))
sketch2.addConstraint(Sketcher.Constraint("DistanceY", 22, 2, -1, 1, Q("3 mm")))
sketch2.addConstraint(Sketcher.Constraint("DistanceY", 25, 3, 11, 2, Q("8 mm")))
sketch2.addConstraint(Sketcher.Constraint("DistanceY", 12, 2, 15, 3, Q("8.999999 mm")))
sketch2.addConstraint(Sketcher.Constraint("DistanceX", 8, 2, 8, 1, Q("28.249999 mm")))
sketch2.addConstraint(Sketcher.Constraint("DistanceX", 21, 3, -1, 1, Q("17.499998 mm")))
sketch2.addConstraint(Sketcher.Constraint("DistanceY", -1, 1, 1, 2, Q("18.500001 mm")))
sketch2.addConstraint(Sketcher.Constraint("DistanceY", -1, 1, 6, 2, Q("18.500001 mm")))
sketch2.addConstraint(Sketcher.Constraint("DistanceX", -1, 1, 25, 1, Q("17.5 mm")))
sketch2.addConstraint(Sketcher.Constraint("DistanceY", 21, 3, 13, 3, Q("9.499998 mm")))
sketch2.addConstraint(Sketcher.Constraint("DistanceY", 14, 1, 14, 2, Q("7.500022 mm")))
sketch2.addConstraint(Sketcher.Constraint("DistanceY", 18, 2, 18, 1, Q("7.500022 mm")))
sketch2.addConstraint(Sketcher.Constraint("DistanceY", 11, 1, 11, 2, Q("8.699988 mm")))
sketch2.addConstraint(Sketcher.Constraint("DistanceY", -1, 1, 24, 2, Q("10.014519 mm")))
sketch2.addConstraint(Sketcher.Constraint("DistanceY", 21, 1, 20, 2, Q("1.98547 mm")))
sketch2.addConstraint(Sketcher.Constraint("DistanceX", 24, 2, 0, 2, Q("16.323251 mm")))
sketch2.addConstraint(Sketcher.Constraint("Distance", 0, Q("13.500007 mm")))
pad2 = body2.newObject("PartDesign::Pad", "Pad001")
pad2.Profile = sketch2
pad2.Length = 5
pad2.Midplane = True

# Sketch on XY plane
sketch3 = body2.newObject("Sketcher::SketchObject", "Sketch002")
sketch3.AttachmentSupport = (doc.getObject("XY_Plane001"), [""])
sketch3.MapMode = "FlatFace"
sketch3.AttachmentOffset = App.Placement(V(0, 0, 16.999988), App.Rotation())
add_polygon(sketch3, [(2.75, -7.5), (7.75, -2.5), (2.75, -2.5)])  # lines 0-2
add_polygon(sketch3, [(-2.75, -7.5), (-2.75, -2.5), (-7.75, -2.5)])  # lines 3-5
sketch3.addConstraint(Sketcher.Constraint("Horizontal", 1))
sketch3.addConstraint(Sketcher.Constraint("Vertical", 2))
sketch3.addConstraint(Sketcher.Constraint("Vertical", 3))
sketch3.addConstraint(Sketcher.Constraint("Horizontal", 4))
sketch3.addConstraint(Sketcher.Constraint("Symmetric", 1, 2, 3, 2, -2))
sketch3.addConstraint(Sketcher.Constraint("Perpendicular", 0, 5))
sketch3.addConstraint(Sketcher.Constraint("Horizontal", 2, 2, 5, 2))
sketch3.addConstraint(Sketcher.Constraint("Equal", 1, 4))
sketch3.addConstraint(Sketcher.Constraint("DistanceX", 1, 2, 1, 1, Q("5 mm")))
sketch3.addConstraint(Sketcher.Constraint("DistanceY", 0, 2, -1, 1, Q("2.5 mm")))
sketch3.addConstraint(Sketcher.Constraint("DistanceX", 3, 2, 1, 2, Q("5.5 mm")))
pad3 = body2.newObject("PartDesign::Pad", "Pad002")
pad3.Profile = sketch3
pad3.Length = 20
pad3.Reversed = True

# Sketch on XZ plane
sketch4 = body2.newObject("Sketcher::SketchObject", "Sketch003")
sketch4.AttachmentSupport = (doc.getObject("XZ_Plane001"), [""])
sketch4.MapMode = "FlatFace"
sketch4.AttachmentOffset = App.Placement(V(0, 0, -2.5), App.Rotation())
sketch4.addGeometry(Part.ArcOfCircle(Part.Circle(V(0, -17.500002, 0), V(0, 0, 1), 17.500002), math.radians(55.150099), math.radians(124.849901)), False)
sketch4.addGeometry(Part.LineSegment(V(10, -3.138593, 0), V(-10, -3.138593, 0)), False)
sketch4.addConstraint(Sketcher.Constraint("Coincident", 0, 1, 1, 1))
sketch4.addConstraint(Sketcher.Constraint("Coincident", 1, 2, 0, 2))
sketch4.addConstraint(Sketcher.Constraint("Horizontal", 1))
sketch4.addConstraint(Sketcher.Constraint("PointOnObject", 0, 3, -2))
sketch4.addConstraint(Sketcher.Constraint("Radius", 0, Q("17.500002 mm")))
sketch4.addConstraint(Sketcher.Constraint("DistanceX", 1, 2, 1, 1, Q("20 mm")))
sketch4.addConstraint(Sketcher.Constraint("DistanceY", 0, 3, -1, 1, Q("17.500002 mm")))
pocket1 = body2.newObject("PartDesign::Pocket", "Pocket")
pocket1.Profile = sketch4
pocket1.Length = 10
pocket1.Reversed = True
doc.recompute()

boolean = body2.newObject("PartDesign::Boolean", "Boolean")
boolean.Type = "Fuse"
boolean.addObjects([body])

doc.recompute()
